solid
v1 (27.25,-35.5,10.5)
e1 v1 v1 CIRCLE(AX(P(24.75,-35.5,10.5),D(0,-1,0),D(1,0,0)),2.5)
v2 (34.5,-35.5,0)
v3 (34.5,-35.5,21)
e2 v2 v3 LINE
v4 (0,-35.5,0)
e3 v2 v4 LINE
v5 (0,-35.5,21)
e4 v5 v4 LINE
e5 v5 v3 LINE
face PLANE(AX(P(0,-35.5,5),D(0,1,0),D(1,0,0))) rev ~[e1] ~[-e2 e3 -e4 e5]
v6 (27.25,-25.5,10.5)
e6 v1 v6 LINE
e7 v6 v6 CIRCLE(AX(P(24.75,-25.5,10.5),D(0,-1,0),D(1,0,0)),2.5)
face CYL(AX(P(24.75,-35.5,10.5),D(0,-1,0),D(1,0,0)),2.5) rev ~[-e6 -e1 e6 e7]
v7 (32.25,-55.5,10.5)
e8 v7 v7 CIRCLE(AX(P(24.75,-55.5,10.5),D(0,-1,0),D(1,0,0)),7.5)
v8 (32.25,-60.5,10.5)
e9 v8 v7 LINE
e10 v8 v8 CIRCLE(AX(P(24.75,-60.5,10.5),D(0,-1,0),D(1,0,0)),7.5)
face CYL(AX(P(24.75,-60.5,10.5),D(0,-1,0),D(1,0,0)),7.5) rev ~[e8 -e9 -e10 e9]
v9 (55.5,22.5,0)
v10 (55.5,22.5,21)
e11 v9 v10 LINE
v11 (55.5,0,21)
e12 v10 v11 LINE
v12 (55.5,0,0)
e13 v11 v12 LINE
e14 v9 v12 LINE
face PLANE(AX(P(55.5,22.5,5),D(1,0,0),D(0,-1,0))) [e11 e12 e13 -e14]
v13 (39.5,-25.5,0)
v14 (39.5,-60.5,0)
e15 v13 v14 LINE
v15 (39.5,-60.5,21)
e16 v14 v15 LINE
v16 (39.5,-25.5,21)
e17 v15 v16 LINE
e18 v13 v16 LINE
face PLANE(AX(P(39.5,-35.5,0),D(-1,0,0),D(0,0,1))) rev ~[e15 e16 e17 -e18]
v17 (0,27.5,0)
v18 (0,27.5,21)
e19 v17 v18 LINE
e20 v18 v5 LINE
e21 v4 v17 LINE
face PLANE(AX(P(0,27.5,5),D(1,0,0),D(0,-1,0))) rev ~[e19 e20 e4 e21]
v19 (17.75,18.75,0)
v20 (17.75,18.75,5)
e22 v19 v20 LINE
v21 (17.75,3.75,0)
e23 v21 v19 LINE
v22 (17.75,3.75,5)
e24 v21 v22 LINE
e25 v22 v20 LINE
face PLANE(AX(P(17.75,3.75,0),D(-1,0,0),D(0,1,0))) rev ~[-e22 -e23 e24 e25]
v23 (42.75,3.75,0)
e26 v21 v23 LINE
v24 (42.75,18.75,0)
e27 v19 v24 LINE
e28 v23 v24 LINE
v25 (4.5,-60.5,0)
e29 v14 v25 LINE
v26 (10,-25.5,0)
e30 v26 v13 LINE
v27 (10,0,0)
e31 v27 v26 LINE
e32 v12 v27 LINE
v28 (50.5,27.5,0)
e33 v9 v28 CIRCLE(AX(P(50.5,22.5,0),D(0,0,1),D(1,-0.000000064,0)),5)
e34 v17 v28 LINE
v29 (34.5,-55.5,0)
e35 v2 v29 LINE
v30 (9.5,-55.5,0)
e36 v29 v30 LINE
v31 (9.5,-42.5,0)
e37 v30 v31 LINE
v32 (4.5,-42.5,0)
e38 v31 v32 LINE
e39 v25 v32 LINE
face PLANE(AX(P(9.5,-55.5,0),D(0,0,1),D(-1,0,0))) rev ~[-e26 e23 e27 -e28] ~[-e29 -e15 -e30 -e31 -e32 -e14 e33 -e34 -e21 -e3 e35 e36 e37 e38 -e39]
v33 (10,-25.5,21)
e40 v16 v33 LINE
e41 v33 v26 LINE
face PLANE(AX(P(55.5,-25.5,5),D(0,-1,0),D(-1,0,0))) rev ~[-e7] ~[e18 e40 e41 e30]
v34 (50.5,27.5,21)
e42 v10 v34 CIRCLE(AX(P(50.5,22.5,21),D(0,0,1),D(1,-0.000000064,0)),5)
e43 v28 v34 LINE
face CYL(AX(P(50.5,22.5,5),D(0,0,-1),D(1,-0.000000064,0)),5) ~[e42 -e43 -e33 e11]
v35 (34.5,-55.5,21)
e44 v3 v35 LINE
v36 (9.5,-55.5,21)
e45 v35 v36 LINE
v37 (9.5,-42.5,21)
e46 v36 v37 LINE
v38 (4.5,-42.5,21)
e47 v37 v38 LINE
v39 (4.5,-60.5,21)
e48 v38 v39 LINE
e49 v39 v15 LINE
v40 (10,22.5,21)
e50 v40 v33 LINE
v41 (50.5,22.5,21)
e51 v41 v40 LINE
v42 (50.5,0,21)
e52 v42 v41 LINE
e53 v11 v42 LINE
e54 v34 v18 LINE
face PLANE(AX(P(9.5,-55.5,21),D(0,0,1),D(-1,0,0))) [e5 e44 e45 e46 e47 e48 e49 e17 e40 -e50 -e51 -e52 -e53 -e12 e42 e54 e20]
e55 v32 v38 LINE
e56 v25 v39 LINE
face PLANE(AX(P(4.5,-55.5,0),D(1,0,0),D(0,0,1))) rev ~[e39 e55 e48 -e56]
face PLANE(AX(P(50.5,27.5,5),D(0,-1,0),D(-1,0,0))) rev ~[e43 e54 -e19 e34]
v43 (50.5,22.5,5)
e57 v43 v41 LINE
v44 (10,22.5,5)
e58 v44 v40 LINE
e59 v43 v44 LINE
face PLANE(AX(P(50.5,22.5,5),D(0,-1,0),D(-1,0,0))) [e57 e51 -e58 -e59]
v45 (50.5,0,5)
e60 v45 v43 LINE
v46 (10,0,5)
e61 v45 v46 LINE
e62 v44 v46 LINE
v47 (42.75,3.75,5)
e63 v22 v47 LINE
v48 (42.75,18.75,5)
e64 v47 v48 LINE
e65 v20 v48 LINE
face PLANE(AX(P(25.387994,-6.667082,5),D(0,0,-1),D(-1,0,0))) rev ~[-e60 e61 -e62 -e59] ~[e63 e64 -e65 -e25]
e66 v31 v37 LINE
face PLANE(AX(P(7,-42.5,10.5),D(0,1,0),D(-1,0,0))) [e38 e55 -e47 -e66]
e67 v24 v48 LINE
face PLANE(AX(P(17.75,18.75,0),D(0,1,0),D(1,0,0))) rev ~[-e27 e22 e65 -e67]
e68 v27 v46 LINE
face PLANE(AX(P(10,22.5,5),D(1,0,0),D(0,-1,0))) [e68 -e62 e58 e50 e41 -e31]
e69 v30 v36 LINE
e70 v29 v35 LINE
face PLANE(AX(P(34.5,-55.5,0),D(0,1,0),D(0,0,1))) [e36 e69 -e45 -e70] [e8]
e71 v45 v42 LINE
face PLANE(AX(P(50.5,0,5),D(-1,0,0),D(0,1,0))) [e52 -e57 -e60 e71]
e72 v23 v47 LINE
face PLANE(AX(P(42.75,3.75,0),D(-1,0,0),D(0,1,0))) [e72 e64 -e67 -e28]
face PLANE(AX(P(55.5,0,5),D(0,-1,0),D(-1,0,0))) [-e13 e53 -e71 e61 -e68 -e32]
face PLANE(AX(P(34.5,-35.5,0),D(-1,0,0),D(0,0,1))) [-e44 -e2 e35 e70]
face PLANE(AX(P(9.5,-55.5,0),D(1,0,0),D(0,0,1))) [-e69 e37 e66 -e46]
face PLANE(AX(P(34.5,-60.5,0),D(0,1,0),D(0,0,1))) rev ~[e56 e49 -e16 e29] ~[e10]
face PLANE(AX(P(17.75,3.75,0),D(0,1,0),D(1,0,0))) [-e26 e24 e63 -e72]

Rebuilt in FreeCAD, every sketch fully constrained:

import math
import FreeCAD as App
import Part
import Sketcher

V = App.Vector


def add_polygon(sketch, points):
    """Adds a closed chain of lines whose ends are joined by coincident constraints."""
    first, n = sketch.GeometryCount, len(points)
    for a, b in zip(points, points[1:] + points[:1]):
        sketch.addGeometry(Part.LineSegment(App.Vector(*a, 0), App.Vector(*b, 0)), False)
    for i in range(n):
        sketch.addConstraint(Sketcher.Constraint("Coincident", first + i, 2, first + (i + 1) % n, 1))

doc = App.newDocument("Part")
body = doc.addObject("PartDesign::Body", "Body")

# Sketch on XY plane
sketch1 = body.newObject("Sketcher::SketchObject", "Sketch")
sketch1.AttachmentSupport = (doc.getObject("XY_Plane"), [""])
sketch1.MapMode = "FlatFace"
sketch1.addGeometry(Part.LineSegment(V(0, 27.5, 0), V(0, -35.5, 0)), False)  # 0
sketch1.addGeometry(Part.LineSegment(V(0, -35.5, 0), V(55.5, -35.5, 0)), False)  # 1
sketch1.addGeometry(Part.LineSegment(V(55.5, -35.5, 0), V(55.5, -25.5, 0)), False)  # 2
sketch1.addGeometry(Part.LineSegment(V(55.5, -25.5, 0), V(10, -25.5, 0)), False)  # 3
sketch1.addGeometry(Part.LineSegment(V(10, -25.5, 0), V(10, 0, 0)), False)  # 4
sketch1.addGeometry(Part.LineSegment(V(10, 0, 0), V(55.5, 0, 0)), False)  # 5
sketch1.addGeometry(Part.LineSegment(V(55.5, 0, 0), V(55.5, 22.5, 0)), False)  # 6
sketch1.addGeometry(Part.ArcOfCircle(Part.Circle(V(50.5, 22.5, 0), V(0, 0, 1), 5), math.radians(0), math.radians(90)), False)  # 7
sketch1.addGeometry(Part.LineSegment(V(50.5, 27.5, 0), V(0, 27.5, 0)), False)  # 8
add_polygon(sketch1, [(17.8, 3.8), (17.8, 18.8), (42.8, 18.8), (42.8, 3.8)])  # lines 9-12
sketch1.addConstraint([
    Sketcher.Constraint("Coincident", 0, 2, 1, 1),
    Sketcher.Constraint("Coincident", 1, 2, 2, 1),
    Sketcher.Constraint("Coincident", 2, 2, 3, 1),
    Sketcher.Constraint("Coincident", 3, 2, 4, 1),
    Sketcher.Constraint("Coincident", 4, 2, 5, 1),
    Sketcher.Constraint("Coincident", 5, 2, 6, 1),
    Sketcher.Constraint("Tangent", 6, 2, 7, 1),
    Sketcher.Constraint("Tangent", 7, 2, 8, 1),
    Sketcher.Constraint("Coincident", 8, 2, 0, 1),
    Sketcher.Constraint("Vertical", 0),
    Sketcher.Constraint("Horizontal", 1),
    Sketcher.Constraint("Vertical", 2),
    Sketcher.Constraint("Horizontal", 3),
    Sketcher.Constraint("Vertical", 4),
    Sketcher.Constraint("Horizontal", 5),
    Sketcher.Constraint("Vertical", 6),
    Sketcher.Constraint("Horizontal", 8),
    Sketcher.Constraint("Vertical", 9),
    Sketcher.Constraint("Horizontal", 10),
    Sketcher.Constraint("Vertical", 11),
    Sketcher.Constraint("Horizontal", 12),
    Sketcher.Constraint("PointOnObject", 0, 2, -2),
    Sketcher.Constraint("PointOnObject", 4, 2, -1),
    Sketcher.Constraint("Vertical", 2, 2, 5, 2),
    Sketcher.Constraint("Radius", 7, 5.0),
    Sketcher.Constraint("DistanceX", 10, 1, 10, 2, 25.0),
    Sketcher.Constraint("DistanceY", 0, 2, 0, 1, 63.0),
    Sketcher.Constraint("DistanceY", 2, 1, 2, 2, 10.0),
    Sketcher.Constraint("DistanceY", 9, 1, 9, 2, 15.0),
    Sketcher.Constraint("DistanceX", 1, 1, 1, 2, 55.5),
    Sketcher.Constraint("DistanceX", 3, 2, 3, 1, 45.5),
    Sketcher.Constraint("DistanceY", 4, 1, 4, 2, 25.5),
    Sketcher.Constraint("DistanceX", -1, 1, 9, 2, 17.75),
    Sketcher.Constraint("DistanceY", -1, 1, 9, 2, 18.75),
])
pad1 = body.newObject("PartDesign::Pad", "Pad")
pad1.Profile = sketch1
pad1.Length = 5

# Sketch on XY plane
sketch2 = body.newObject("Sketcher::SketchObject", "Sketch001")
sketch2.AttachmentSupport = (doc.getObject("XY_Plane"), [""])
sketch2.MapMode = "FlatFace"
sketch2.AttachmentOffset = App.Placement(V(0, 0, 5), App.Rotation())
sketch2.addGeometry([
    Part.LineSegment(V(55.5, 0, 0), V(55.5, 22.5, 0)),  # 0
    Part.ArcOfCircle(Part.Circle(V(50.5, 22.5, 0), V(0, 0, 1), 5), math.radians(0), math.radians(90)),  # 1
    Part.LineSegment(V(50.5, 27.5, 0), V(0, 27.5, 0)),  # 2
    Part.LineSegment(V(0, 27.5, 0), V(0, -35.5, 0)),  # 3
    Part.LineSegment(V(0, -35.5, 0), V(55.5, -35.5, 0)),  # 4
    Part.LineSegment(V(55.5, -35.5, 0), V(55.5, -25.5, 0)),  # 5
    Part.LineSegment(V(55.5, -25.5, 0), V(10, -25.5, 0)),  # 6
    Part.LineSegment(V(10, -25.5, 0), V(10, 22.5, 0)),  # 7
    Part.LineSegment(V(10, 22.5, 0), V(50.5, 22.5, 0)),  # 8
    Part.LineSegment(V(50.5, 22.5, 0), V(50.5, 0, 0)),  # 9
    Part.LineSegment(V(50.5, 0, 0), V(55.5, 0, 0)),  # 10
], False)
sketch2.addConstraint([
    Sketcher.Constraint("Tangent", 0, 2, 1, 1),
    Sketcher.Constraint("Tangent", 1, 2, 2, 1),
    Sketcher.Constraint("Coincident", 2, 2, 3, 1),
    Sketcher.Constraint("Coincident", 3, 2, 4, 1),
    Sketcher.Constraint("Coincident", 4, 2, 5, 1),
    Sketcher.Constraint("Coincident", 5, 2, 6, 1),
    Sketcher.Constraint("Coincident", 6, 2, 7, 1),
    Sketcher.Constraint("Coincident", 7, 2, 8, 1),
    Sketcher.Constraint("Coincident", 8, 2, 9, 1),
    Sketcher.Constraint("Coincident", 9, 2, 10, 1),
    Sketcher.Constraint("Coincident", 10, 2, 0, 1),
    Sketcher.Constraint("Vertical", 0),
    Sketcher.Constraint("Horizontal", 2),
    Sketcher.Constraint("Vertical", 3),
    Sketcher.Constraint("Horizontal", 4),
    Sketcher.Constraint("Vertical", 5),
    Sketcher.Constraint("Horizontal", 6),
    Sketcher.Constraint("Vertical", 7),
    Sketcher.Constraint("Horizontal", 8),
    Sketcher.Constraint("Vertical", 9),
    Sketcher.Constraint("Horizontal", 10),
    Sketcher.Constraint("Coincident", 8, 2, 1, 3),
    Sketcher.Constraint("PointOnObject", 2, 2, -2),
    Sketcher.Constraint("PointOnObject", 9, 2, -1),
    Sketcher.Constraint("Vertical", 0, 2, 4, 2),
    Sketcher.Constraint("Radius", 1, 5.0),
    Sketcher.Constraint("DistanceY", 3, 2, 3, 1, 63.0),
    Sketcher.Constraint("DistanceY", 5, 1, 5, 2, 10.0),
    Sketcher.Constraint("DistanceX", 2, 2, 2, 1, 50.5),
    Sketcher.Constraint("DistanceX", 6, 2, 6, 1, 45.5),
    Sketcher.Constraint("DistanceY", 0, 1, 0, 2, 22.5),
])
pad2 = body.newObject("PartDesign::Pad", "Pad001")
pad2.Profile = sketch2
pad2.Length = 16

# Sketch on XZ plane
sketch3 = body.newObject("Sketcher::SketchObject", "Sketch002")
sketch3.AttachmentSupport = (doc.getObject("XZ_Plane"), [""])
sketch3.MapMode = "FlatFace"
sketch3.AttachmentOffset = App.Placement(V(0, 0, 35.5), App.Rotation())
sketch3.addGeometry(Part.Circle(V(24.8, 10.5, 0), V(0, 0, 1), 2.5), False)  # 0
add_polygon(sketch3, [(39.5, 21), (39.5, 0), (55.5, 0), (55.5, 21)])  # lines 1-4
sketch3.addConstraint([
    Sketcher.Constraint("Vertical", 1),
    Sketcher.Constraint("Horizontal", 2),
    Sketcher.Constraint("Vertical", 3),
    Sketcher.Constraint("Horizontal", 4),
    Sketcher.Constraint("PointOnObject", 1, 2, -1),
    Sketcher.Constraint("Diameter", 0, 5.0),
    Sketcher.Constraint("DistanceX", 2, 1, 2, 2, 16.0),
    Sketcher.Constraint("DistanceY", 1, 2, 1, 1, 21.0),
    Sketcher.Constraint("DistanceY", -1, 1, 0, 3, 10.5),
    Sketcher.Constraint("DistanceX", -1, 1, 1, 2, 39.5),
    Sketcher.Constraint("DistanceX", -1, 1, 0, 3, 24.75),
])
pocket1 = body.newObject("PartDesign::Pocket", "Pocket")
pocket1.Profile = sketch3
pocket1.Length = 15

# Sketch on XZ plane
sketch4 = body.newObject("Sketcher::SketchObject", "Sketch003")
sketch4.AttachmentSupport = (doc.getObject("XZ_Plane"), [""])
sketch4.MapMode = "FlatFace"
sketch4.AttachmentOffset = App.Placement(V(0, 0, 35.5), App.Rotation())
add_polygon(sketch4, [(34, 21), (34, 0), (40, 0), (40, 21)])  # lines 0-3
sketch4.addConstraint([
    Sketcher.Constraint("Vertical", 0),
    Sketcher.Constraint("Horizontal", 1),
    Sketcher.Constraint("Vertical", 2),
    Sketcher.Constraint("Horizontal", 3),
    Sketcher.Constraint("PointOnObject", 0, 2, -1),
    Sketcher.Constraint("DistanceX", 1, 1, 1, 2, 5.0),
    Sketcher.Constraint("DistanceY", 0, 2, 0, 1, 21.0),
    Sketcher.Constraint("DistanceX", -1, 1, 0, 2, 34.5),
])
pad3 = body.newObject("PartDesign::Pad", "Pad002")
pad3.Profile = sketch4
pad3.Length = 25

# Sketch on YZ plane
sketch5 = body.newObject("Sketcher::SketchObject", "Sketch004")
sketch5.AttachmentSupport = (doc.getObject("YZ_Plane"), [""])
sketch5.MapMode = "FlatFace"
sketch5.AttachmentOffset = App.Placement(V(0, 0, 34.5), App.Rotation())
add_polygon(sketch5, [(-56, 21), (-56, 0), (-60, 0), (-60, 21)])  # lines 0-3
sketch5.addConstraint([
    Sketcher.Constraint("Vertical", 0),
    Sketcher.Constraint("Horizontal", 1),
    Sketcher.Constraint("Vertical", 2),
    Sketcher.Constraint("Horizontal", 3),
    Sketcher.Constraint("PointOnObject", 0, 2, -1),
    Sketcher.Constraint("DistanceX", 1, 2, 1, 1, 5.0),
    Sketcher.Constraint("DistanceY", 0, 2, 0, 1, 21.0),
    Sketcher.Constraint("DistanceX", 0, 2, -1, 1, 55.5),
])
pad4 = body.newObject("PartDesign::Pad", "Pad003")
pad4.Profile = sketch5
pad4.Length = 30
pad4.Reversed = True

# Sketch on XZ plane
sketch6 = body.newObject("Sketcher::SketchObject", "Sketch005")
sketch6.AttachmentSupport = (doc.getObject("XZ_Plane"), [""])
sketch6.MapMode = "FlatFace"
sketch6.AttachmentOffset = App.Placement(V(0, 0, 55.5), App.Rotation())
add_polygon(sketch6, [(10, 21), (10, 0), (4, 0), (4, 21)])  # lines 0-3
sketch6.addConstraint([
    Sketcher.Constraint("Vertical", 0),
    Sketcher.Constraint("Horizontal", 1),
    Sketcher.Constraint("Vertical", 2),
    Sketcher.Constraint("Horizontal", 3),
    Sketcher.Constraint("PointOnObject", 0, 2, -1),
    Sketcher.Constraint("DistanceX", 1, 2, 1, 1, 5.0),
    Sketcher.Constraint("DistanceY", 0, 2, 0, 1, 21.0),
    Sketcher.Constraint("DistanceX", -1, 1, 0, 2, 9.5),
])
pad5 = body.newObject("PartDesign::Pad", "Pad004")
pad5.Profile = sketch6
pad5.Length = 13
pad5.Reversed = True

# Sketch on XZ plane
sketch7 = body.newObject("Sketcher::SketchObject", "Sketch006")
sketch7.AttachmentSupport = (doc.getObject("XZ_Plane"), [""])
sketch7.MapMode = "FlatFace"
sketch7.AttachmentOffset = App.Placement(V(0, 0, 60.5), App.Rotation())
sketch7.addGeometry(Part.Circle(V(25, 10, 0), V(0, 0, 1), 8), False)
sketch7.addConstraint([
    Sketcher.Constraint("Diameter", 0, 15.0),
    Sketcher.Constraint("DistanceY", -1, 1, 0, 3, 10.5),
    Sketcher.Constraint("DistanceX", -1, 1, 0, 3, 24.75),
])
pocket2 = body.newObject("PartDesign::Pocket", "Pocket001")
pocket2.Profile = sketch7
pocket2.Length = 10

doc.recompute()
